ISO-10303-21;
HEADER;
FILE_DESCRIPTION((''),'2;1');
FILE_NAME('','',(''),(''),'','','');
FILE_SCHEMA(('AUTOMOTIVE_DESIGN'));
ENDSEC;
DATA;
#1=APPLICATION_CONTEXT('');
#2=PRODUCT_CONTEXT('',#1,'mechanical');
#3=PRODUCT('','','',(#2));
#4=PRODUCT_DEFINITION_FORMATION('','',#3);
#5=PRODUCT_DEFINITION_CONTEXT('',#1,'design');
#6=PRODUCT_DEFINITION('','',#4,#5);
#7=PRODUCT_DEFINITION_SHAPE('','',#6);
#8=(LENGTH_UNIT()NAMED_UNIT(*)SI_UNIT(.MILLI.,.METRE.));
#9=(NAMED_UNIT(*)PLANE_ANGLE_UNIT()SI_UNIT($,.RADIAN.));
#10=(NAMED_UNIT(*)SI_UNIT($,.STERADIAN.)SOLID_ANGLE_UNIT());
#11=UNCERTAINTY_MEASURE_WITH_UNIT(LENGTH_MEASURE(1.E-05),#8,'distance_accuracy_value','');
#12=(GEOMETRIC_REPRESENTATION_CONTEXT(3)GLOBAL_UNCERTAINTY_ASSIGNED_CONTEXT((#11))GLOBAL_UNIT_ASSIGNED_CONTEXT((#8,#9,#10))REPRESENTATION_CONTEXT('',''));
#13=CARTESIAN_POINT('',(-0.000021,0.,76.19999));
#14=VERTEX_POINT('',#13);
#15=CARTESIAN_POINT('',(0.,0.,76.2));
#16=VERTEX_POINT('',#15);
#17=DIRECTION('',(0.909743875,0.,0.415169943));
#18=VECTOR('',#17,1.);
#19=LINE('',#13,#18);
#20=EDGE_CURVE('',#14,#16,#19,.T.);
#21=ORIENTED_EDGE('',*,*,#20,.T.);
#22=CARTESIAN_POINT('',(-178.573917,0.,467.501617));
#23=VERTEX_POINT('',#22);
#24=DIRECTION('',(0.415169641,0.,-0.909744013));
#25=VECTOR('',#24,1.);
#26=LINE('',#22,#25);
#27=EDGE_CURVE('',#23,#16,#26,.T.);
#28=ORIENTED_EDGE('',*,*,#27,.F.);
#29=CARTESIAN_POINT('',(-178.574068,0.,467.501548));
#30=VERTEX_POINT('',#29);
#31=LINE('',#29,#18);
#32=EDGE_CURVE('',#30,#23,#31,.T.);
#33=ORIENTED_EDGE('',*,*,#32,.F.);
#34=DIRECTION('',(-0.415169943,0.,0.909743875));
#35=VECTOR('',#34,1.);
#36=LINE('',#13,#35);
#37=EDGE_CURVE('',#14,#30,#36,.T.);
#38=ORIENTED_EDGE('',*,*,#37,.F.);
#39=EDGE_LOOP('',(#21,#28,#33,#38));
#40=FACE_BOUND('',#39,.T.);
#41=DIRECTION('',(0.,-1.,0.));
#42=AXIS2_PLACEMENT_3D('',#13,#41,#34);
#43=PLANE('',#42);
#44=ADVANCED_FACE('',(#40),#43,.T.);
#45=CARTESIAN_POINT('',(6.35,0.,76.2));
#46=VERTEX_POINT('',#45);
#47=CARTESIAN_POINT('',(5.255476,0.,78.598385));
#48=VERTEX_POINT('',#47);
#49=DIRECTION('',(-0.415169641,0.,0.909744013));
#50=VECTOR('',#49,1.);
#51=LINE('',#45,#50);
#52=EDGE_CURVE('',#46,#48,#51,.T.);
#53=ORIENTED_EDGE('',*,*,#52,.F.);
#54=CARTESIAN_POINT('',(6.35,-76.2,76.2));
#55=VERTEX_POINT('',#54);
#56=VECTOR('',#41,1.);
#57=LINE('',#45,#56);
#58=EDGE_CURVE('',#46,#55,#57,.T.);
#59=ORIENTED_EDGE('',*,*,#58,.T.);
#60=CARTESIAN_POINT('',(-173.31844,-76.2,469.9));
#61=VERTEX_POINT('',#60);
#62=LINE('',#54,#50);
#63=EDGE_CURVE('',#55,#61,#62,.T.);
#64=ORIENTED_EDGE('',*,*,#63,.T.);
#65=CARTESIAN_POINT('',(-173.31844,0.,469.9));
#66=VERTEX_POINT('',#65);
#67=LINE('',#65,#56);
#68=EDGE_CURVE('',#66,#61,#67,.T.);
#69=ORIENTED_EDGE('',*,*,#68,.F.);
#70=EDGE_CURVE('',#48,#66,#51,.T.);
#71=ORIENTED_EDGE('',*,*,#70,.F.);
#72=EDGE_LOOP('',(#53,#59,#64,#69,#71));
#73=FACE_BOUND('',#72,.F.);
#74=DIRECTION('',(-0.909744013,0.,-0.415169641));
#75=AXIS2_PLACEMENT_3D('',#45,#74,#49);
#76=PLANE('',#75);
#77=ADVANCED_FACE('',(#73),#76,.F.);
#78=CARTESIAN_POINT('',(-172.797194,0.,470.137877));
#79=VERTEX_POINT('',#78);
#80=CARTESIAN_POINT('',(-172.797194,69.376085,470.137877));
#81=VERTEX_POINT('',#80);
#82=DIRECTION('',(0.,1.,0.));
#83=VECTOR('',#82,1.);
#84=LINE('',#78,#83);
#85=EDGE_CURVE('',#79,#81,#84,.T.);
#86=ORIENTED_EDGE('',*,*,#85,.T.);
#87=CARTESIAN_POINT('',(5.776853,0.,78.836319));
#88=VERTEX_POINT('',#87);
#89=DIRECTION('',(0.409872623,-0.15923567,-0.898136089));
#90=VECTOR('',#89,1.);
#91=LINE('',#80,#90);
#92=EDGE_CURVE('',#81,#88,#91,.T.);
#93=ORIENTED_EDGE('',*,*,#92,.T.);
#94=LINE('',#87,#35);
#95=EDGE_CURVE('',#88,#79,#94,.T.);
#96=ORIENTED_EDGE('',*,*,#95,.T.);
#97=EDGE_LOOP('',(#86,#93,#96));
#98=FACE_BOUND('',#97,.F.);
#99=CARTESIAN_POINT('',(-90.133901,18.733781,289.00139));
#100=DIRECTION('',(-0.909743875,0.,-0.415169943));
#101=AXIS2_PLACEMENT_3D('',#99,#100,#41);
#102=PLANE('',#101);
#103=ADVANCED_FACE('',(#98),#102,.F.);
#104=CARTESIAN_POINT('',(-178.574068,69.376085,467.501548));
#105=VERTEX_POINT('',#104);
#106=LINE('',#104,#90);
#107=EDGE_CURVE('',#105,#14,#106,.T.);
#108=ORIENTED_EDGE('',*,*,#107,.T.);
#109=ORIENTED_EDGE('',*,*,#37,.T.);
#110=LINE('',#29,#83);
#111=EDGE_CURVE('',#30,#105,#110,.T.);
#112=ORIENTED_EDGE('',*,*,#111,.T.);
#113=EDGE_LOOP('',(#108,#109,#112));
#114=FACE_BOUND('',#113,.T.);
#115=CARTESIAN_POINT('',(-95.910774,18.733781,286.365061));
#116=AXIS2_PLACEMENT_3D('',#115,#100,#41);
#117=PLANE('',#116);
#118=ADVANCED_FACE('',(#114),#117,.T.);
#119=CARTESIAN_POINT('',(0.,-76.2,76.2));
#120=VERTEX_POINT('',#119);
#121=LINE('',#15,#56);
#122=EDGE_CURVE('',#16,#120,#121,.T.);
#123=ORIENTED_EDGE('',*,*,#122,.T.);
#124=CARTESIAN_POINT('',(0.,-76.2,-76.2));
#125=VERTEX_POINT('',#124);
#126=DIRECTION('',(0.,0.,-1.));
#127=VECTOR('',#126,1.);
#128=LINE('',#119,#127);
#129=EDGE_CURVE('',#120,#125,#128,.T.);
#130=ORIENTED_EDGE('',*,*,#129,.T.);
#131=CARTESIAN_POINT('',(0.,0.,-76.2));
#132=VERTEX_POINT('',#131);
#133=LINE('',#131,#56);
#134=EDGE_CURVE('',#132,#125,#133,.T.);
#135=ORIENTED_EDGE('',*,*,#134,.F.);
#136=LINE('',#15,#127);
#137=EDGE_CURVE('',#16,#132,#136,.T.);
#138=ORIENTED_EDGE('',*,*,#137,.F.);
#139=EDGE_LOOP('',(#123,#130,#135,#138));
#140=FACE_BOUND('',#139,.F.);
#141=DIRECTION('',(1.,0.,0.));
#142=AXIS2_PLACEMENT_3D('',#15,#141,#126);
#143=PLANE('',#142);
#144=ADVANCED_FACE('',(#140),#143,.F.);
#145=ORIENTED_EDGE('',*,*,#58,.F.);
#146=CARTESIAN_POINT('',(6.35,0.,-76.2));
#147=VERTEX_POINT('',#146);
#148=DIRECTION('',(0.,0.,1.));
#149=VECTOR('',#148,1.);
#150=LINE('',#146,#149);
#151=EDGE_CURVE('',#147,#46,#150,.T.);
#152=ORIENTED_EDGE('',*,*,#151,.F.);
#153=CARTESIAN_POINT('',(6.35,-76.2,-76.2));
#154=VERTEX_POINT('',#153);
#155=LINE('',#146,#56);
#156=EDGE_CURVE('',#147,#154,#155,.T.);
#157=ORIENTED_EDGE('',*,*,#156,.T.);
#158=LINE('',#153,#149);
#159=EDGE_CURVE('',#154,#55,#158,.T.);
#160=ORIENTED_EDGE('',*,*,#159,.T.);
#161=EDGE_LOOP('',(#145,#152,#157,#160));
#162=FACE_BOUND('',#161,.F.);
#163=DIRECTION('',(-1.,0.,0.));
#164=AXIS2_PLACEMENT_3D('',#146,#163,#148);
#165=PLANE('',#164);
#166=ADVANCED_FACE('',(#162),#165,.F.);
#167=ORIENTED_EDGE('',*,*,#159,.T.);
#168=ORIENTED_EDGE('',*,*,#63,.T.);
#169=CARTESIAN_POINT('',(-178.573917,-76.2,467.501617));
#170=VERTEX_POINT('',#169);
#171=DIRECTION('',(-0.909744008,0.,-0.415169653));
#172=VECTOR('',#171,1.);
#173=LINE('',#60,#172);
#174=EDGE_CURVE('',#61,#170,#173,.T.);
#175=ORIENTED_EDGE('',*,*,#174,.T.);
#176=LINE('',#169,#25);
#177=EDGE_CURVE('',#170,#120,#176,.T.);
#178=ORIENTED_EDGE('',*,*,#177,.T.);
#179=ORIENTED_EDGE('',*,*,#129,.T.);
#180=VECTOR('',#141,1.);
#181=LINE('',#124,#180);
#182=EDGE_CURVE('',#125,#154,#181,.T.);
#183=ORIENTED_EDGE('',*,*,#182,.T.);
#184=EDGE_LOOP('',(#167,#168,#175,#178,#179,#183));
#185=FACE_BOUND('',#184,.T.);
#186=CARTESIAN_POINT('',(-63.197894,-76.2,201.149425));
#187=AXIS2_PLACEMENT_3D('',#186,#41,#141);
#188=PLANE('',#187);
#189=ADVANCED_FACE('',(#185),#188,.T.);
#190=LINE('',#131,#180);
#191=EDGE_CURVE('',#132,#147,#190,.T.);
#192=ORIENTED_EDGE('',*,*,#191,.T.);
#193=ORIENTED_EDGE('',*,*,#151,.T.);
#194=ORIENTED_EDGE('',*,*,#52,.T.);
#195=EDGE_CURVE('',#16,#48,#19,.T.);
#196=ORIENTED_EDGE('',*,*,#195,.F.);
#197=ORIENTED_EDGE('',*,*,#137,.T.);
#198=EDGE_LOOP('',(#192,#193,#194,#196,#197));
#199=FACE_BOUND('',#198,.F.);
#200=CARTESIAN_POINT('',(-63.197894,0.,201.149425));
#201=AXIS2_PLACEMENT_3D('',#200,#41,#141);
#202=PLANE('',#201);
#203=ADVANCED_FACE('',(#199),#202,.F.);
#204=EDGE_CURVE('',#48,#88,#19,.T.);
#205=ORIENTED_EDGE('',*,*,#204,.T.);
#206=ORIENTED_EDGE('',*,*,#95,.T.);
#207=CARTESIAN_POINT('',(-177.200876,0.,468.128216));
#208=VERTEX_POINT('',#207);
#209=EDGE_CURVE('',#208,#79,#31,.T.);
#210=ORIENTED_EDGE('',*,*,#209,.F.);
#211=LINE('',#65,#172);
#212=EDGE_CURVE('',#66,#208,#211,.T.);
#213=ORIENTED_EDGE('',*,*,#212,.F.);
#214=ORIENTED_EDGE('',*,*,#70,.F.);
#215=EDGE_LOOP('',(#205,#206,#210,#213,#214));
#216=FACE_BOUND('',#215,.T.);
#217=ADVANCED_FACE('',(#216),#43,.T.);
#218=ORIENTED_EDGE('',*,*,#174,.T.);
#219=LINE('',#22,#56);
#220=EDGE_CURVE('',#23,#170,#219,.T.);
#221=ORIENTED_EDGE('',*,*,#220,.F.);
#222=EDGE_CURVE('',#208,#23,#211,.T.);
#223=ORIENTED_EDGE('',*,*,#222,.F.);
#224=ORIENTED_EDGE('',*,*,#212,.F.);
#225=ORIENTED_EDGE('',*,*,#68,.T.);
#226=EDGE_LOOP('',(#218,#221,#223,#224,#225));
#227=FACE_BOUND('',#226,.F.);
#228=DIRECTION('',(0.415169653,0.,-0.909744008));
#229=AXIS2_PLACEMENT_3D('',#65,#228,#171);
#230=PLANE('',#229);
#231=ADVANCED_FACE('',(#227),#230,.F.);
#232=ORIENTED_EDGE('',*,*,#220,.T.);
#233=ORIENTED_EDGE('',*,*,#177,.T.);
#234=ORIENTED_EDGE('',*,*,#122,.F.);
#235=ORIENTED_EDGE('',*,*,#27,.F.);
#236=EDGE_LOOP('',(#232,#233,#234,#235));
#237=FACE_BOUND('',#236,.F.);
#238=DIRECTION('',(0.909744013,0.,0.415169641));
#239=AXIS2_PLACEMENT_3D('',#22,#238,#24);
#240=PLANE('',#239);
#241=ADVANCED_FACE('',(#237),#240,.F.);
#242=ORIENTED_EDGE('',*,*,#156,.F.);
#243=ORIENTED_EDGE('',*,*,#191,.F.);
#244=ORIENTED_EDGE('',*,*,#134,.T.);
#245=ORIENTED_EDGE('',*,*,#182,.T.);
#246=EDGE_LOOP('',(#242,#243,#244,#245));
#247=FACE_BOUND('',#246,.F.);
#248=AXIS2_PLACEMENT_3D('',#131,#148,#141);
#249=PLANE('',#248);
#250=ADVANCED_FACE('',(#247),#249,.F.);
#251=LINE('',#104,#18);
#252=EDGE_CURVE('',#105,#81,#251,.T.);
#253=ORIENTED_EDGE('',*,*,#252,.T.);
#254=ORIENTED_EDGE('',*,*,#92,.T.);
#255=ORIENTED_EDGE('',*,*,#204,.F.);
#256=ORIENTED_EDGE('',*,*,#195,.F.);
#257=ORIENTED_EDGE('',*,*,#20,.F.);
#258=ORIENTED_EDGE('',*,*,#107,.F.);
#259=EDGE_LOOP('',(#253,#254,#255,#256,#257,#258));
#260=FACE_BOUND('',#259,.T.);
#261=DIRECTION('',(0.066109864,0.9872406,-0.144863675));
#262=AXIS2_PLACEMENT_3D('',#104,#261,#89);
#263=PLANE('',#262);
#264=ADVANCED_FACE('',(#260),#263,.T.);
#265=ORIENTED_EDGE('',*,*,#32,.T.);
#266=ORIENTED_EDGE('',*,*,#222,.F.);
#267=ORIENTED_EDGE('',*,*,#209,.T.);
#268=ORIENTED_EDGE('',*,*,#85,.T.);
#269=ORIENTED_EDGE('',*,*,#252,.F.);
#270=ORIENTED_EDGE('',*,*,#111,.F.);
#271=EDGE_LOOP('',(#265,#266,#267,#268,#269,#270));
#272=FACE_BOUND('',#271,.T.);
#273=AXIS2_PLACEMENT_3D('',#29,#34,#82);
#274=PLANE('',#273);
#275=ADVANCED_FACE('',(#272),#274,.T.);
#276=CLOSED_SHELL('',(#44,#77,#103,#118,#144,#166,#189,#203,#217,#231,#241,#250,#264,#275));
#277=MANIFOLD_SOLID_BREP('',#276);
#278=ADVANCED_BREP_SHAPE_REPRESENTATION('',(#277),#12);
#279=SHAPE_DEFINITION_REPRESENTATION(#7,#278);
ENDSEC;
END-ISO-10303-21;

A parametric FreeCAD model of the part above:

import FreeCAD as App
import Part
import Sketcher

V = App.Vector
Q = App.Units.Quantity


def add_polygon(sketch, points):
    """Adds a closed chain of lines whose ends are joined by coincident constraints."""
    first, n = sketch.GeometryCount, len(points)
    for a, b in zip(points, points[1:] + points[:1]):
        sketch.addGeometry(Part.LineSegment(App.Vector(*a, 0), App.Vector(*b, 0)), False)
    for i in range(n):
        sketch.addConstraint(Sketcher.Constraint("Coincident", first + i, 2, first + (i + 1) % n, 1))

doc = App.newDocument("Part")
body = doc.addObject("PartDesign::Body", "Body")

# Sketch on XZ plane
sketch1 = body.newObject("Sketcher::SketchObject", "Sketch")
sketch1.AttachmentSupport = (doc.getObject("XZ_Plane"), [""])
sketch1.MapMode = "FlatFace"
add_polygon(sketch1, [(6, -76), (6, 76), (-173, 470), (-179, 468), (0, 76), (0, -76)])  # lines 0-5
sketch1.addConstraint(Sketcher.Constraint("Vertical", 0))
sketch1.addConstraint(Sketcher.Constraint("Vertical", 4))
sketch1.addConstraint(Sketcher.Constraint("Horizontal", 5))
sketch1.addConstraint(Sketcher.Constraint("Symmetric", 3, 2, 4, 2, -1, 1))
sketch1.addConstraint(Sketcher.Constraint("Perpendicular", 1, 2))
sketch1.addConstraint(Sketcher.Constraint("Perpendicular", 2, 3))
sketch1.addConstraint(Sketcher.Constraint("Horizontal", 0, 2, 3, 2))
sketch1.addConstraint(Sketcher.Constraint("DistanceY", 0, 1, 0, 2, Q("6 in")))
sketch1.addConstraint(Sketcher.Constraint("DistanceX", 5, 1, 5, 2, Q("0.25 in")))
sketch1.addConstraint(Sketcher.Constraint("DistanceY", -1, 1, 1, 2, Q("18.5 in")))
sketch1.addConstraint(Sketcher.Constraint("Angle", 1, Q("114.53 deg")))
pad1 = body.newObject("PartDesign::Pad", "Pad")
pad1.Profile = sketch1
pad1.Length = Q("3 in")

# Sketch on an angled plane
sketch2 = body.newObject("Sketcher::SketchObject", "Sketch001")
sketch2.Placement = App.Placement(V(28.780595, 0, 13.134276), App.Rotation(V(0, -1, 0), V(-0.415169943, 0, 0.909743875), V(-0.909743875, 0, -0.415169943), "ZXY"))
add_polygon(sketch2, [(0, 69), (0, 499), (-69, 499)])  # lines 0-2
sketch2.addConstraint(Sketcher.Constraint("Vertical", 0))
sketch2.addConstraint(Sketcher.Constraint("Horizontal", 1))
sketch2.addConstraint(Sketcher.Constraint("PointOnObject", 0, 2, -2))
sketch2.addConstraint(Sketcher.Constraint("DistanceY", 0, 1, 0, 2, 430.122772))
sketch2.addConstraint(Sketcher.Constraint("Distance", 2, 435.681811))
sketch2.addConstraint(Sketcher.Constraint("DistanceY", -1, 1, 0, 2, 499.445266))
pad2 = body.newObject("PartDesign::Pad", "Pad001")
pad2.Profile = sketch2
pad2.Length = Q("0.25 in")
pad2.Reversed = True

doc.recompute()
